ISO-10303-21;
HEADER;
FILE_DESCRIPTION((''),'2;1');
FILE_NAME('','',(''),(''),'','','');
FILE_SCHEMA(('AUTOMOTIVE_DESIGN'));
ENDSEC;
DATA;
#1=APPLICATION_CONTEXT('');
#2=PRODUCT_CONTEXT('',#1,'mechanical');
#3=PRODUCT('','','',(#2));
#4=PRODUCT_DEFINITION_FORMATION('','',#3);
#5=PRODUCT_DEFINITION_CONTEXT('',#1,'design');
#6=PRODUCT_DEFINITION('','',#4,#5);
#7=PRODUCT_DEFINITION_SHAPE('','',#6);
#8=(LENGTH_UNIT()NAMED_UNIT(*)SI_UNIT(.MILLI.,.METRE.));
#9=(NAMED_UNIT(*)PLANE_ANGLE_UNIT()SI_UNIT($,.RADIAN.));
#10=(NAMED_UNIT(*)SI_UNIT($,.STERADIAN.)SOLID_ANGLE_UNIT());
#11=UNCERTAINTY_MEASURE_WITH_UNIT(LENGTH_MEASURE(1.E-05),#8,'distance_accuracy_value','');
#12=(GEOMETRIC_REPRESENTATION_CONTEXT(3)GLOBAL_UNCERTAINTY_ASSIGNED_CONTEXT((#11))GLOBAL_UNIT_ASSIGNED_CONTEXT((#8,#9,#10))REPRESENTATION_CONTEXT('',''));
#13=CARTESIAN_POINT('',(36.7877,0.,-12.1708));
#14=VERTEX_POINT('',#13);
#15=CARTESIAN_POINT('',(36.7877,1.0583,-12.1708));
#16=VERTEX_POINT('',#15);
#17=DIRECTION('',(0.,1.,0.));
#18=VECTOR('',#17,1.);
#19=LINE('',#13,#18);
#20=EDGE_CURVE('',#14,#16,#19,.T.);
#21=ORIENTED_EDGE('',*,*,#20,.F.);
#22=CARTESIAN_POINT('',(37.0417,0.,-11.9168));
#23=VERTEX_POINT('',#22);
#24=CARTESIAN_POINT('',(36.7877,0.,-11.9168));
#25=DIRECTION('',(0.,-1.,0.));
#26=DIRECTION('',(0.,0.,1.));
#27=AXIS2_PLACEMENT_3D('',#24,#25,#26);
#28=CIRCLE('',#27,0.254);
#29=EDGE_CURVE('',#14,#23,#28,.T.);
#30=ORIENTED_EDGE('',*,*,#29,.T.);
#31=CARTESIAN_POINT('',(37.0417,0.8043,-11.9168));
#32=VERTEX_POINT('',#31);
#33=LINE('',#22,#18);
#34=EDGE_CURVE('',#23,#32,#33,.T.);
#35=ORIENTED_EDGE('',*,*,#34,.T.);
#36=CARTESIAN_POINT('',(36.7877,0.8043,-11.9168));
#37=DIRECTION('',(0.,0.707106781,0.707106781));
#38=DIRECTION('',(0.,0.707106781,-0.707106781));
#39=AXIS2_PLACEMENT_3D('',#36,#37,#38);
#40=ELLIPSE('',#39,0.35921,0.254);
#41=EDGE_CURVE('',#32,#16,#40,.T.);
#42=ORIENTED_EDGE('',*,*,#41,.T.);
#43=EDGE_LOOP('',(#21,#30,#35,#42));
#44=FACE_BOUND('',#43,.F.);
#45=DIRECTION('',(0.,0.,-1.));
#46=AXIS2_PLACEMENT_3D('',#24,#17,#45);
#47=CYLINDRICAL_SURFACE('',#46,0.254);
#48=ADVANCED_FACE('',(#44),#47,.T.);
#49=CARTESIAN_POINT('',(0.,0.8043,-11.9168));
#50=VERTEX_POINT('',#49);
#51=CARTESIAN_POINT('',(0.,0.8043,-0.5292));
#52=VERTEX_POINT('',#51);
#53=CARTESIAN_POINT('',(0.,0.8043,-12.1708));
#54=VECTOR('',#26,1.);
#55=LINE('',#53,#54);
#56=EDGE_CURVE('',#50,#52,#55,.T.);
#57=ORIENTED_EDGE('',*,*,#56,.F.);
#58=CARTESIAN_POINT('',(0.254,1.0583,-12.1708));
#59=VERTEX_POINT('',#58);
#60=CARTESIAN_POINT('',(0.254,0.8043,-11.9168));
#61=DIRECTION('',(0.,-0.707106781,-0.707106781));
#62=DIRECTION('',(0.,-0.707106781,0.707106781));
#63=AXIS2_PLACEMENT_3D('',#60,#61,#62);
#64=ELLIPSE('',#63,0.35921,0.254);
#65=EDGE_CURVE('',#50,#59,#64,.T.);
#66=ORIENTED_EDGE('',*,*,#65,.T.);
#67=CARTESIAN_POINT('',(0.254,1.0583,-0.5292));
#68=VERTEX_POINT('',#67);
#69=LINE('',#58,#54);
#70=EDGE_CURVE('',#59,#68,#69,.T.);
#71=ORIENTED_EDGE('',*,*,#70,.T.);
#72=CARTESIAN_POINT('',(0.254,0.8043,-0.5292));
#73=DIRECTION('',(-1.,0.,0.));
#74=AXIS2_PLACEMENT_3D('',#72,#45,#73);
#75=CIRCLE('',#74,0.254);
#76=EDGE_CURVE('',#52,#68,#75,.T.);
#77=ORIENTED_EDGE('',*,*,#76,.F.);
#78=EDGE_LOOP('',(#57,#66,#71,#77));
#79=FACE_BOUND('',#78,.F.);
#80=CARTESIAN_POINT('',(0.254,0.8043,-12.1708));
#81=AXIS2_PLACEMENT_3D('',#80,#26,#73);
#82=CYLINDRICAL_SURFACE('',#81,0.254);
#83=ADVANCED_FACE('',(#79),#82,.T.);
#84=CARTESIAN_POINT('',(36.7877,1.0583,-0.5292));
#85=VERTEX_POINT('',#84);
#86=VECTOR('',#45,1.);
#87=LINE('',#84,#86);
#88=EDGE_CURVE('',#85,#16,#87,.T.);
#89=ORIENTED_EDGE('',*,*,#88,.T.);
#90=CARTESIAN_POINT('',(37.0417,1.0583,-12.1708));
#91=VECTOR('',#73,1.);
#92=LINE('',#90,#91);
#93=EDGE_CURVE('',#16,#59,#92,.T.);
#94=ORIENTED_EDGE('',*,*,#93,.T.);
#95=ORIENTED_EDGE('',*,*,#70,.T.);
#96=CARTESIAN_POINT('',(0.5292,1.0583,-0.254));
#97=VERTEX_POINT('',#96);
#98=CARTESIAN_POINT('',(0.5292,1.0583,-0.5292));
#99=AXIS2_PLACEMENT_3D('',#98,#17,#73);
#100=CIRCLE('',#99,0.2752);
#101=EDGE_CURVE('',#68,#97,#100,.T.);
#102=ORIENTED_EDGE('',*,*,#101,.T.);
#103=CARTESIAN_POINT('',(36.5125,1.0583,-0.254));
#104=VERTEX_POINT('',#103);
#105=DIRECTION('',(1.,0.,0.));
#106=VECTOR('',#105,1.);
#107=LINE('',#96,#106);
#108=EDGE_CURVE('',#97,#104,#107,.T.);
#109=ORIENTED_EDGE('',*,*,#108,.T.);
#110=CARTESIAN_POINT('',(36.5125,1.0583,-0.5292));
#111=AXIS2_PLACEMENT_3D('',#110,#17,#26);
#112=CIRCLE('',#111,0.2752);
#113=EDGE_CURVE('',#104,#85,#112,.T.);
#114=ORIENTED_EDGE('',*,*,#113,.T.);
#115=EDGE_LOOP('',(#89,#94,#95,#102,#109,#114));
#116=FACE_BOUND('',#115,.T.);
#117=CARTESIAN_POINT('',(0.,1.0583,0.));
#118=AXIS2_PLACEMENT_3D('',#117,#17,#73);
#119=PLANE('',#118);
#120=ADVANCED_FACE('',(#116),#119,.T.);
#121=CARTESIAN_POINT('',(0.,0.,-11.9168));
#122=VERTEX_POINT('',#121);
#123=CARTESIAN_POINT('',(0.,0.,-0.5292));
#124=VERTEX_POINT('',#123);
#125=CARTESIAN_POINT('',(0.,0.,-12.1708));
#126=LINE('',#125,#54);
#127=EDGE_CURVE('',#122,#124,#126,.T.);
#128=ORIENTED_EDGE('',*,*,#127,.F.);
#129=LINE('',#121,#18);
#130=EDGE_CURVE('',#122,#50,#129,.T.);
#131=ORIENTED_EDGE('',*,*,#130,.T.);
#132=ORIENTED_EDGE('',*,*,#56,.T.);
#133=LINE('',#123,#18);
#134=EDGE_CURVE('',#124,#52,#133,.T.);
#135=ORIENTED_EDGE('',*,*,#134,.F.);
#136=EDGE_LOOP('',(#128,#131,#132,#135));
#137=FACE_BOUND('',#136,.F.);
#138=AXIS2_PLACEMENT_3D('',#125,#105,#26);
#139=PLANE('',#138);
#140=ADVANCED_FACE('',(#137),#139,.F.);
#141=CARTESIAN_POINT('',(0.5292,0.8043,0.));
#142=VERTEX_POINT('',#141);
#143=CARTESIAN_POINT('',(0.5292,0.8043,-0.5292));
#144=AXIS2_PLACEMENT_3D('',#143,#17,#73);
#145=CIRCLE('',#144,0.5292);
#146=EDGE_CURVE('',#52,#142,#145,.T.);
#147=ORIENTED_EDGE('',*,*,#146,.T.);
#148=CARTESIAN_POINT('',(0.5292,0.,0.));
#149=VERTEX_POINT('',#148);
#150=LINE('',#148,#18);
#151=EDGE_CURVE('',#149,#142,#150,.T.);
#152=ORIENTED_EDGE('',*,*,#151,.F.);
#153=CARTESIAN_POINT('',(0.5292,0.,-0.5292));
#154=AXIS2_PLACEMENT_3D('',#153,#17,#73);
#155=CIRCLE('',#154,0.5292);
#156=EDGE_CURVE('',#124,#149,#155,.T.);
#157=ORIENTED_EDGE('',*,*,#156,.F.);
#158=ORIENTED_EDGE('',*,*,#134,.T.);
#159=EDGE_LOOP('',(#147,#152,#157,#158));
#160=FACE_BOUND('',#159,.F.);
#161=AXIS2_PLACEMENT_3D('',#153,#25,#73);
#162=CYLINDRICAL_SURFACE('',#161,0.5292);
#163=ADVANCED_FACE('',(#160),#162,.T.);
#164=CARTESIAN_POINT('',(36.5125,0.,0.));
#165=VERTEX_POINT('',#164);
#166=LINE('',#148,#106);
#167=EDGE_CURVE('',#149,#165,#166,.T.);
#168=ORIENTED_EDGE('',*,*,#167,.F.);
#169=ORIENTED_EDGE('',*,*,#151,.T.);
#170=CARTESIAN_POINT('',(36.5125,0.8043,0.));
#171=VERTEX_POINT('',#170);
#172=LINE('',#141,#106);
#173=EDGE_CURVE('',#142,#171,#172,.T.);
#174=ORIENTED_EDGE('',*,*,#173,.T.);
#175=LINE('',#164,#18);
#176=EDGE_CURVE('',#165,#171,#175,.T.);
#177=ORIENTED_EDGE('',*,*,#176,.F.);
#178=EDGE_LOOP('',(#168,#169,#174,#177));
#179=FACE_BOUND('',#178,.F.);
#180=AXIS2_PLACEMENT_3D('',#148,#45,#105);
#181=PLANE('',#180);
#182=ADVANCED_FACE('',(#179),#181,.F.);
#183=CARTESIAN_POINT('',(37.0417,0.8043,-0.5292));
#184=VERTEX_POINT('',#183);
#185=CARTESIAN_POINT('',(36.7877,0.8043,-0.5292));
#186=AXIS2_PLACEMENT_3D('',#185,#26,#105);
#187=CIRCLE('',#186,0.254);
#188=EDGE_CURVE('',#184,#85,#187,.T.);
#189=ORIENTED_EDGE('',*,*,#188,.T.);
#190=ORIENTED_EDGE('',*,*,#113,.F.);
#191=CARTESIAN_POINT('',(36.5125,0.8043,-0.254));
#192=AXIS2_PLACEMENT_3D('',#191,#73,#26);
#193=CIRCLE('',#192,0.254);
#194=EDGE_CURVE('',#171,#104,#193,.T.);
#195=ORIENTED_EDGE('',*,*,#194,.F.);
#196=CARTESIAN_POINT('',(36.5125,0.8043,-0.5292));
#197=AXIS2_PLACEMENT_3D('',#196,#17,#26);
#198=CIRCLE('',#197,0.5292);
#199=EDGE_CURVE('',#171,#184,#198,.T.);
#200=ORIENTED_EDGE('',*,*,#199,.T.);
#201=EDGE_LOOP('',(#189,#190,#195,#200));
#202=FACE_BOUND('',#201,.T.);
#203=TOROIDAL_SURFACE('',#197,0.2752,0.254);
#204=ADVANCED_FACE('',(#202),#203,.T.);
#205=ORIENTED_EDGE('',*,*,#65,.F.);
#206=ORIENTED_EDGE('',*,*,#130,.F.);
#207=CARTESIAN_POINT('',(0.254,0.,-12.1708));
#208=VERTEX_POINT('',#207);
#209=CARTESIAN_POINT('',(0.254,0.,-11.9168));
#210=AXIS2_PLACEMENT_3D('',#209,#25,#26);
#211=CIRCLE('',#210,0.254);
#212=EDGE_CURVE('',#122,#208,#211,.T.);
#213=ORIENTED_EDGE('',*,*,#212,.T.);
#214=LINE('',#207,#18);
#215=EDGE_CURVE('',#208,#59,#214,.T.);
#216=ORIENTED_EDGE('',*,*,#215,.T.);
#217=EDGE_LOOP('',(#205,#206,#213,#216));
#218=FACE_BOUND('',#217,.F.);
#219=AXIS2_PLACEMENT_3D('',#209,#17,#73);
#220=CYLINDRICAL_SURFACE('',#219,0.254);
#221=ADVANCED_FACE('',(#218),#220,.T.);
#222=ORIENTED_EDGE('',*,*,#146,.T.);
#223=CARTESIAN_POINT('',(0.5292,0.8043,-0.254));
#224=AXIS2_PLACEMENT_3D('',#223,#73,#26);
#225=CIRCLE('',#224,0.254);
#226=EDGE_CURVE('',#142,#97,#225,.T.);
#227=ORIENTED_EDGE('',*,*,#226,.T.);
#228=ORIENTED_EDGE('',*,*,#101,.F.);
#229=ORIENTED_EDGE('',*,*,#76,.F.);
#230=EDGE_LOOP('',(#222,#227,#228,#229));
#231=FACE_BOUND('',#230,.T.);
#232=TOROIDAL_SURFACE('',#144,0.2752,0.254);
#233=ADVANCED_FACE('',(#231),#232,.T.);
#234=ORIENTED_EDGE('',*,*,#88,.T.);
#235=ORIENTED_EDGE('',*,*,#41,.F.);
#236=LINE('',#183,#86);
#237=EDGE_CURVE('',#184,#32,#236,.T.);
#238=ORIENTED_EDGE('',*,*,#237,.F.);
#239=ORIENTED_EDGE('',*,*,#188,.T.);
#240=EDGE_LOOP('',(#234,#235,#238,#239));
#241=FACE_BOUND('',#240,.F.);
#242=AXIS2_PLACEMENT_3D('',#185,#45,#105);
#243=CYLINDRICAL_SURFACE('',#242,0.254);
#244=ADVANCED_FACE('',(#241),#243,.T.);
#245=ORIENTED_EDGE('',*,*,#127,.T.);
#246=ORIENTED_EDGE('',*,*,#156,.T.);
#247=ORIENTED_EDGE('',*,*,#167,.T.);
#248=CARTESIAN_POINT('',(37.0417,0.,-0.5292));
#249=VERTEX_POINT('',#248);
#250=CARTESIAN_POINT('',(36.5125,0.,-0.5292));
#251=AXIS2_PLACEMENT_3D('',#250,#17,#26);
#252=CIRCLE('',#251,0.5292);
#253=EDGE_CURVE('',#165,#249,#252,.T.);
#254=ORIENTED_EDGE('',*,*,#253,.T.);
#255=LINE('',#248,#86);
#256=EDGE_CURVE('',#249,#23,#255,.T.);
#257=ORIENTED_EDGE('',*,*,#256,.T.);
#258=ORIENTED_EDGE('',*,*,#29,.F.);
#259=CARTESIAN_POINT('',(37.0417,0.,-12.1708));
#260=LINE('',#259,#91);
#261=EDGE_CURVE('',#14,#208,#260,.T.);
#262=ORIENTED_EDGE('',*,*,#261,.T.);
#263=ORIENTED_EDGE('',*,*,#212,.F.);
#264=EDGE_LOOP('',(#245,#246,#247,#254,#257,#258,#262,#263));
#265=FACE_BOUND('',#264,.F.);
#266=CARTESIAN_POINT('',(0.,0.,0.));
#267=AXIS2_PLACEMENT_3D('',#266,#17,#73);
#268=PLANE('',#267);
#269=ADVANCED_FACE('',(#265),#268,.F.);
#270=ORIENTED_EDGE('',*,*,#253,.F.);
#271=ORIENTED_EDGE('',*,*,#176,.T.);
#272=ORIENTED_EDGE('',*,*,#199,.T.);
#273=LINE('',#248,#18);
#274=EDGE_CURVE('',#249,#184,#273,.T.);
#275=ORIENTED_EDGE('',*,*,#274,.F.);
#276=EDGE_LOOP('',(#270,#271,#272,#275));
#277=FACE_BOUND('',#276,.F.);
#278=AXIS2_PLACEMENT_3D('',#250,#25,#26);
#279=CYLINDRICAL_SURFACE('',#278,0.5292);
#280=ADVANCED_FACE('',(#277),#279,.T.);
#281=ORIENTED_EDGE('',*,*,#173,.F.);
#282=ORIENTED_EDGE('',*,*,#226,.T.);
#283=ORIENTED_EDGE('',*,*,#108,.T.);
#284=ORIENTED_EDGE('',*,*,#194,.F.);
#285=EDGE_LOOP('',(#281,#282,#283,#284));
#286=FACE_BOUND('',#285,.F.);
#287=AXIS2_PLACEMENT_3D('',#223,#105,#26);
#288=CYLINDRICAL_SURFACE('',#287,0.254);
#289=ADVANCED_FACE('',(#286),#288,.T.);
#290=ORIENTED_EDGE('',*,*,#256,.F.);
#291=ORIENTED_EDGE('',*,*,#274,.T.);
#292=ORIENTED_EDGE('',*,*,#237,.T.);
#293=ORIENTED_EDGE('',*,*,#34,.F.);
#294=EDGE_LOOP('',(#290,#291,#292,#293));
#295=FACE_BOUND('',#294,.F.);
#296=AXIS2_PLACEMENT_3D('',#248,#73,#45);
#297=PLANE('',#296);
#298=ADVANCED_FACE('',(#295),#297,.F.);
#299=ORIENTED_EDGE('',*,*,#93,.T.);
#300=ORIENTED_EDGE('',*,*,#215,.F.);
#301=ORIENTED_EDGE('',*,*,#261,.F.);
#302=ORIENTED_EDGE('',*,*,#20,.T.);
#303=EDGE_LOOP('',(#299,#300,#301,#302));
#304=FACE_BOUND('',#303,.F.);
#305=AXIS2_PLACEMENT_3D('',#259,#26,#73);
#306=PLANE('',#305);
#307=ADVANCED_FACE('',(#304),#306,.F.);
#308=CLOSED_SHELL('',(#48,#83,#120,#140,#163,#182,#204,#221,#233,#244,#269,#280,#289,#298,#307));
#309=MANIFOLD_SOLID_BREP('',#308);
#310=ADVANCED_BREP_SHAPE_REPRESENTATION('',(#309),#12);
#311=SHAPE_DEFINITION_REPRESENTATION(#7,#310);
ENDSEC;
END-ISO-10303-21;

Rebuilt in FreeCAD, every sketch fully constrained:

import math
import FreeCAD as App
import Part
import Sketcher
Q = App.Units.Quantity


def edges_at(feature, points):
    """Names of the edges that pass closest to the given points."""
    edges = feature.Shape.Edges
    near = lambda p: min(range(len(edges)), key=lambda i: edges[i].distToShape(Part.Vertex(*p))[0])
    return sorted({f"Edge{near(p) + 1}" for p in points})

doc = App.newDocument("Part")
body = doc.addObject("PartDesign::Body", "Body")

sketch1 = body.newObject("Sketcher::SketchObject", "Sketch")
sketch1.AttachmentSupport = (doc.getObject("XZ_Plane"), [""])
sketch1.MapMode = "FlatFace"
sketch1.addGeometry(Part.ArcOfCircle(Part.Circle(App.Vector(0.5292, -0.5292, 0), App.Vector(0, 0, 1), 0.5292), math.radians(90), math.radians(180)), False)
sketch1.addGeometry(Part.LineSegment(App.Vector(0.5292, 0, 0), App.Vector(36.5125, 0, 0)), False)
sketch1.addGeometry(Part.ArcOfCircle(Part.Circle(App.Vector(36.5125, -0.5292, 0), App.Vector(0, 0, 1), 0.5292), math.radians(0), math.radians(90)), False)
sketch1.addGeometry(Part.LineSegment(App.Vector(37.0417, -0.5292, 0), App.Vector(37.0417, -12.1708, 0)), False)
sketch1.addGeometry(Part.LineSegment(App.Vector(37.0417, -12.1708, 0), App.Vector(0, -12.1708, 0)), False)
sketch1.addGeometry(Part.LineSegment(App.Vector(0, -12.1708, 0), App.Vector(0, -0.5292, 0)), False)
sketch1.addConstraint(Sketcher.Constraint("Tangent", 0, 1, 1, 1))
sketch1.addConstraint(Sketcher.Constraint("Tangent", 1, 2, 2, 2))
sketch1.addConstraint(Sketcher.Constraint("Tangent", 2, 1, 3, 1))
sketch1.addConstraint(Sketcher.Constraint("Coincident", 3, 2, 4, 1))
sketch1.addConstraint(Sketcher.Constraint("Coincident", 4, 2, 5, 1))
sketch1.addConstraint(Sketcher.Constraint("Tangent", 5, 2, 0, 2))
sketch1.addConstraint(Sketcher.Constraint("Horizontal", 1))
sketch1.addConstraint(Sketcher.Constraint("Vertical", 3))
sketch1.addConstraint(Sketcher.Constraint("Horizontal", 4))
sketch1.addConstraint(Sketcher.Constraint("Vertical", 5))
sketch1.addConstraint(Sketcher.Constraint("Equal", 0, 2))
sketch1.addConstraint(Sketcher.Constraint("PointOnObject", 0, 1, -1))
sketch1.addConstraint(Sketcher.Constraint("PointOnObject", 4, 2, -2))
sketch1.addConstraint(Sketcher.Constraint("Radius", 0, Q("0.5292 mm")))
sketch1.addConstraint(Sketcher.Constraint("DistanceX", 4, 2, 4, 1, Q("37.0417 mm")))
sketch1.addConstraint(Sketcher.Constraint("DistanceY", 3, 2, -1, 1, Q("12.1708 mm")))
pad1 = body.newObject("PartDesign::Pad", "Pad")
pad1.Profile = sketch1
pad1.Length = 1.0583
pad1.Reversed = True
doc.recompute()

fillet = body.newObject("PartDesign::Fillet", "Fillet")
fillet.Base = (pad1, edges_at(pad1, [
    (36.887, 1.058, -0.155),
    (18.521, 1.058, 0),
    (0.155, 1.058, -0.155),
    (0, 1.058, -6.35),
    (37.042, 1.058, -6.35),
    (37.042, 0.529, -12.171),
    (0, 0.529, -12.171),
]))
fillet.Radius = Q("0.01 in")

doc.recompute()
